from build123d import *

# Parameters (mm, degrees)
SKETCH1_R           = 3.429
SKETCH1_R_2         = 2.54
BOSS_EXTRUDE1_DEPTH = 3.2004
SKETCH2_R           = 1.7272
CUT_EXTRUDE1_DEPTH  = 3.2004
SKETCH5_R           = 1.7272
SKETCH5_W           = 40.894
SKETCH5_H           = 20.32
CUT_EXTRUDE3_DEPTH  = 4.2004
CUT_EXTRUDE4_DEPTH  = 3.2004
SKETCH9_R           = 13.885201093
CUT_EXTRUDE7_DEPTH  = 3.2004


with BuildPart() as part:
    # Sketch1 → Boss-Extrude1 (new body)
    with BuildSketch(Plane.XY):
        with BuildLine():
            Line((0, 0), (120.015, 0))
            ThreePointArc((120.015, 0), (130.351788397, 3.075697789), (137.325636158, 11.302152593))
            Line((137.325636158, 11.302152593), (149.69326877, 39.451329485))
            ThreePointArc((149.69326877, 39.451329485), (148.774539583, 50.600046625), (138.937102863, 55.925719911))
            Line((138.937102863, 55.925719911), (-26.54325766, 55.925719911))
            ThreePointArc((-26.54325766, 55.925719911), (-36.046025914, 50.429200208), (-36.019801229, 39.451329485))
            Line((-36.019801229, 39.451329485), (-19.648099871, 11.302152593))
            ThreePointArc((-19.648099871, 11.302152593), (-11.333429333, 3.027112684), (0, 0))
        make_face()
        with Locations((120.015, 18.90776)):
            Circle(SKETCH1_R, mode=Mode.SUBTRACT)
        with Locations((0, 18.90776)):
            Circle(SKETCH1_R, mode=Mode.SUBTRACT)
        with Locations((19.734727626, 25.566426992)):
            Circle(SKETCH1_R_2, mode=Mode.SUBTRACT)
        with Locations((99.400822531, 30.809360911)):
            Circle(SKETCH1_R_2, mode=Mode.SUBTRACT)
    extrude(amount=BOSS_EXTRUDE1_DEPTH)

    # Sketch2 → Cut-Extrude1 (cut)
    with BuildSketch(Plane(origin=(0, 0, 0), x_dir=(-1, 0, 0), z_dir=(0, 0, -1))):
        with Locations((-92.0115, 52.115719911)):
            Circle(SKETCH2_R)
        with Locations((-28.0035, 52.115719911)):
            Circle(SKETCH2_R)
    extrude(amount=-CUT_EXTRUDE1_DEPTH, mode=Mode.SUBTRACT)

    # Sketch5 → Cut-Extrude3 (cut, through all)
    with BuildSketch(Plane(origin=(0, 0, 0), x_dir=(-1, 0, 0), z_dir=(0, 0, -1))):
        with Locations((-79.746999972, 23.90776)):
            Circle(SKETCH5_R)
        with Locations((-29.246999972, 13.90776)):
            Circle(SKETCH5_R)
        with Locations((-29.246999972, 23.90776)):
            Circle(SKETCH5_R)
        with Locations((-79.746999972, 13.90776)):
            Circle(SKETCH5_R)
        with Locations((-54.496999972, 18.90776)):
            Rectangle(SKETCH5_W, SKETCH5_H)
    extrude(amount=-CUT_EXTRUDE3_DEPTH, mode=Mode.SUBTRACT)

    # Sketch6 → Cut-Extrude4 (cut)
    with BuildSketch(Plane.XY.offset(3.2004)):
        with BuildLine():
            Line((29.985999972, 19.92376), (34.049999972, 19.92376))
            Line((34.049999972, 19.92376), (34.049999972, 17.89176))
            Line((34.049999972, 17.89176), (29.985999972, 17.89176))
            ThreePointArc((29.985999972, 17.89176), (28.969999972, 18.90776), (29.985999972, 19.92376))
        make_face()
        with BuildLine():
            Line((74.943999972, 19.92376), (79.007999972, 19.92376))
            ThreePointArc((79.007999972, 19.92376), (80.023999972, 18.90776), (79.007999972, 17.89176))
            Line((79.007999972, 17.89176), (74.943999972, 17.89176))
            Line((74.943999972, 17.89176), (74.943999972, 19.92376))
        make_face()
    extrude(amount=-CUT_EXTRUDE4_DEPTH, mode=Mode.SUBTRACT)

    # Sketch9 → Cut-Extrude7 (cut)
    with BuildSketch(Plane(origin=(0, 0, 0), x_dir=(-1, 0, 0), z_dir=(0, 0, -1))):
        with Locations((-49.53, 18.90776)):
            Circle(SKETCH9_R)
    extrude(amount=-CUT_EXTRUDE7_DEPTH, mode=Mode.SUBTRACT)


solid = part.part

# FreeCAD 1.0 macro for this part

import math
import FreeCAD as App
import Part
import Sketcher

V = App.Vector
Q = App.Units.Quantity

doc = App.newDocument("Part")
params = doc.addObject("Spreadsheet::Sheet", "Params")
for row, (alias, value) in enumerate([
    ("sketch1_diameter", "0.2 in"),
    ("sketch1_diameter2", "0.27 in"),
    ("sketch1_width", "4.725 in"),
    ("pad1_length", "0.126 in"),
    ("sketch2_diameter", "0.136 in"),
    ("pocket1_length", "0.126 in"),
    ("sketch3_diameter", "0.136 in"),
    ("sketch3_height", "0.8 in"),
    ("sketch3_width", "1.61 in"),
    ("sketch4_radius", "0.04 in"),
    ("sketch4_width", "0.16 in"),
    ("pocket3_length", "0.126 in"),
    ("pocket4_length", "0.126 in"),
], start=1):
    params.set(f"A{row}", alias)
    params.set(f"B{row}", "=" + value)
    params.setAlias(f"B{row}", alias)

body = doc.addObject("PartDesign::Body", "Body")

sketch1 = doc.addObject("Sketcher::SketchObject", "Sketch")
body.addObject(sketch1)
sketch1.AttachmentSupport = (doc.XY_Plane, [""])
sketch1.MapMode = "FlatFace"
sketch1.addGeometry([
    Part.LineSegment(V(0, 0, 0), V(120.015, 0, 0)),
    Part.ArcOfCircle(Part.Circle(V(120.015, 18.90776, 0), V(0, 0, 1), 18.90776), math.radians(-90), math.radians(-23.718783)),
    Part.LineSegment(V(137.325636, 11.302153, 0), V(149.693269, 39.451329, 0)),
    Part.ArcOfCircle(Part.Circle(V(138.937103, 44.177162, 0), V(0, 0, 1), 11.748557), math.radians(-23.718783), math.radians(90)),
    Part.LineSegment(V(138.937103, 55.92572, 0), V(-26.543258, 55.92572, 0)),
    Part.ArcOfCircle(Part.Circle(V(-26.543258, 44.962934, 0), V(0, 0, 1), 10.962786), math.radians(90), math.radians(210.182496)),
    Part.LineSegment(V(-36.019801, 39.451329, 0), V(-19.6481, 11.302153, 0)),
    Part.ArcOfCircle(Part.Circle(V(0, 22.729585, 0), V(0, 0, 1), 22.729585), math.radians(-149.817504), math.radians(-90)),
    Part.Circle(V(0, 18.90776, 0), V(0, 0, 1), 3.429),
    Part.Circle(V(120.015, 18.90776, 0), V(0, 0, 1), 3.429),
    Part.Circle(V(19.734728, 25.566427, 0), V(0, 0, 1), 2.54),
    Part.Circle(V(99.400823, 30.809361, 0), V(0, 0, 1), 2.54),
], False)
sketch1.addConstraint([
    Sketcher.Constraint("Tangent", 0, 2, 1, 1),
    Sketcher.Constraint("Tangent", 1, 2, 2, 1),
    Sketcher.Constraint("Tangent", 2, 2, 3, 1),
    Sketcher.Constraint("Tangent", 3, 2, 4, 1),
    Sketcher.Constraint("Tangent", 4, 2, 5, 1),
    Sketcher.Constraint("Tangent", 5, 2, 6, 1),
    Sketcher.Constraint("Tangent", 6, 2, 7, 1),
    Sketcher.Constraint("Tangent", 7, 2, 0, 1),
    Sketcher.Constraint("Horizontal", 0),
    Sketcher.Constraint("Horizontal", 4),
    Sketcher.Constraint("Coincident", 7, 2, -1, 1),
    Sketcher.Constraint("Coincident", 9, 3, 1, 3),
    Sketcher.Constraint("Equal", 8, 9),
    Sketcher.Constraint("Equal", 10, 11),
    Sketcher.Constraint("PointOnObject", 8, 3, -2),
    Sketcher.Constraint("Horizontal", 1, 3, 8, 3),
    Sketcher.Constraint("Horizontal", 2, 2, 5, 2),
    Sketcher.Constraint("Horizontal", 1, 2, 6, 2),
    Sketcher.Constraint("Diameter", 10, Q("0.2 in")),
    Sketcher.Constraint("Diameter", 8, Q("0.27 in")),
    Sketcher.Constraint("Radius", 1, Q("0.7444 in")),
    Sketcher.Constraint("DistanceX", 0, 1, 0, 2, Q("4.725 in")),
    Sketcher.Constraint("DistanceY", -1, 1, 3, 2, Q("2.2018 in")),
    Sketcher.Constraint("Radius", 3, 11.748557),
    Sketcher.Constraint("Radius", 5, 10.962786),
    Sketcher.Constraint("Radius", 7, 22.729585),
    Sketcher.Constraint("DistanceY", 1, 3, 11, 3, 11.901601),
    Sketcher.Constraint("DistanceY", 7, 3, 10, 3, 2.836842),
    Sketcher.Constraint("DistanceX", 11, 3, 3, 3, 39.53628),
    Sketcher.Constraint("DistanceX", 5, 2, 10, 3, 55.754529),
])
sketch1.setExpression("Constraints[18]", "Params.sketch1_diameter")
sketch1.setExpression("Constraints[19]", "Params.sketch1_diameter2")
sketch1.setExpression("Constraints[21]", "Params.sketch1_width")
pad1 = doc.addObject("PartDesign::Pad", "Pad")
body.addObject(pad1)
pad1.Profile = sketch1
pad1.setExpression("Length", "Params.pad1_length")

sketch2 = doc.addObject("Sketcher::SketchObject", "Sketch001")
body.addObject(sketch2)
sketch2.AttachmentSupport = (doc.XY_Plane, [""])
sketch2.MapMode = "FlatFace"
sketch2.addGeometry([
    Part.Circle(V(92.0115, 52.11572, 0), V(0, 0, 1), 1.7272),
    Part.Circle(V(28.0035, 52.11572, 0), V(0, 0, 1), 1.7272),
], False)
sketch2.addConstraint([
    Sketcher.Constraint("Equal", 0, 1),
    Sketcher.Constraint("Horizontal", 0, 3, 1, 3),
    Sketcher.Constraint("Diameter", 0, Q("0.136 in")),
    Sketcher.Constraint("DistanceX", 1, 3, 0, 3, Q("2.52 in")),
    Sketcher.Constraint("DistanceX", -1, 1, 0, 3, Q("3.6225 in")),
    Sketcher.Constraint("DistanceY", -1, 1, 0, 3, Q("2.0518 in")),
])
sketch2.setExpression("Constraints[2]", "Params.sketch2_diameter")
pocket1 = doc.addObject("PartDesign::Pocket", "Pocket")
body.addObject(pocket1)
pocket1.Profile = sketch2
pocket1.setExpression("Length", "Params.pocket1_length")
pocket1.Reversed = True

sketch3 = doc.addObject("Sketcher::SketchObject", "Sketch002")
body.addObject(sketch3)
sketch3.AttachmentSupport = (doc.XY_Plane, [""])
sketch3.MapMode = "FlatFace"
sketch3.addGeometry([
    Part.Circle(V(79.747, 23.90776, 0), V(0, 0, 1), 1.7272),
    Part.Circle(V(29.247, 13.90776, 0), V(0, 0, 1), 1.7272),
    Part.Circle(V(29.247, 23.90776, 0), V(0, 0, 1), 1.7272),
    Part.Circle(V(79.747, 13.90776, 0), V(0, 0, 1), 1.7272),
    Part.LineSegment(V(74.944, 29.06776, 0), V(74.944, 8.74776, 0)),
    Part.LineSegment(V(74.944, 8.74776, 0), V(34.05, 8.74776, 0)),
    Part.LineSegment(V(34.05, 8.74776, 0), V(34.05, 29.06776, 0)),
    Part.LineSegment(V(34.05, 29.06776, 0), V(74.944, 29.06776, 0)),
], False)
sketch3.addConstraint([
    Sketcher.Constraint("Coincident", 4, 2, 5, 1),
    Sketcher.Constraint("Coincident", 5, 2, 6, 1),
    Sketcher.Constraint("Coincident", 6, 2, 7, 1),
    Sketcher.Constraint("Coincident", 7, 2, 4, 1),
    Sketcher.Constraint("Vertical", 4),
    Sketcher.Constraint("Horizontal", 5),
    Sketcher.Constraint("Vertical", 6),
    Sketcher.Constraint("Horizontal", 7),
    Sketcher.Constraint("Equal", 0, 1),
    Sketcher.Constraint("Equal", 1, 2),
    Sketcher.Constraint("Equal", 2, 3),
    Sketcher.Constraint("Horizontal", 0, 3, 2, 3),
    Sketcher.Constraint("Horizontal", 1, 3, 3, 3),
    Sketcher.Constraint("Vertical", 1, 3, 2, 3),
    Sketcher.Constraint("Vertical", 0, 3, 3, 3),
    Sketcher.Constraint("Diameter", 0, Q("0.136 in")),
    Sketcher.Constraint("DistanceY", 4, 2, 4, 1, Q("0.8 in")),
    Sketcher.Constraint("DistanceX", 5, 2, 5, 1, Q("1.61 in")),
    Sketcher.Constraint("DistanceY", -1, 1, 4, 2, Q("0.3444 in")),
    Sketcher.Constraint("DistanceX", -1, 1, 0, 3, 79.747),
    Sketcher.Constraint("DistanceX", -1, 1, 1, 3, 29.247),
    Sketcher.Constraint("DistanceX", -1, 1, 4, 2, 74.944),
    Sketcher.Constraint("DistanceY", 1, 3, 0, 3, 10.0),
    Sketcher.Constraint("DistanceY", 4, 2, 3, 3, 5.16),
])
sketch3.setExpression("Constraints[15]", "Params.sketch3_diameter")
sketch3.setExpression("Constraints[16]", "Params.sketch3_height")
sketch3.setExpression("Constraints[17]", "Params.sketch3_width")
pocket2 = doc.addObject("PartDesign::Pocket", "Pocket001")
body.addObject(pocket2)
pocket2.Profile = sketch3
pocket2.Type = "ThroughAll"
pocket2.Reversed = True

sketch4 = doc.addObject("Sketcher::SketchObject", "Sketch003")
body.addObject(sketch4)
sketch4.AttachmentSupport = (doc.XY_Plane, [""])
sketch4.MapMode = "FlatFace"
sketch4.AttachmentOffset = App.Placement(V(0, 0, 0.126 * 25.4), App.Rotation())
sketch4.addGeometry([
    Part.LineSegment(V(34.05, 19.92376, 0), V(29.986, 19.92376, 0)),
    Part.ArcOfCircle(Part.Circle(V(29.986, 18.90776, 0), V(0, 0, 1), 1.016), math.radians(90), math.radians(270)),
    Part.LineSegment(V(29.986, 17.89176, 0), V(34.05, 17.89176, 0)),
    Part.LineSegment(V(34.05, 17.89176, 0), V(34.05, 19.92376, 0)),
    Part.LineSegment(V(79.008, 19.92376, 0), V(74.944, 19.92376, 0)),
    Part.LineSegment(V(74.944, 19.92376, 0), V(74.944, 17.89176, 0)),
    Part.LineSegment(V(74.944, 17.89176, 0), V(79.008, 17.89176, 0)),
    Part.ArcOfCircle(Part.Circle(V(79.008, 18.90776, 0), V(0, 0, 1), 1.016), math.radians(-90), math.radians(90)),
], False)
sketch4.addConstraint([
    Sketcher.Constraint("Tangent", 0, 2, 1, 1),
    Sketcher.Constraint("Tangent", 1, 2, 2, 1),
    Sketcher.Constraint("Coincident", 2, 2, 3, 1),
    Sketcher.Constraint("Coincident", 3, 2, 0, 1),
    Sketcher.Constraint("Coincident", 4, 2, 5, 1),
    Sketcher.Constraint("Coincident", 5, 2, 6, 1),
    Sketcher.Constraint("Tangent", 6, 2, 7, 1),
    Sketcher.Constraint("Tangent", 7, 2, 4, 1),
    Sketcher.Constraint("Horizontal", 0),
    Sketcher.Constraint("Horizontal", 2),
    Sketcher.Constraint("Vertical", 3),
    Sketcher.Constraint("Horizontal", 4),
    Sketcher.Constraint("Vertical", 5),
    Sketcher.Constraint("Horizontal", 6),
    Sketcher.Constraint("Equal", 1, 7),
    Sketcher.Constraint("Horizontal", 1, 3, 7, 3),
    Sketcher.Constraint("Equal", 2, 4),
    Sketcher.Constraint("Radius", 1, Q("0.04 in")),
    Sketcher.Constraint("DistanceX", 0, 2, 0, 1, Q("0.16 in")),
    Sketcher.Constraint("DistanceX", 1, 3, 7, 3, Q("1.93 in")),
    Sketcher.Constraint("DistanceY", -1, 1, 1, 3, Q("0.7444 in")),
    Sketcher.Constraint("DistanceX", -1, 1, 1, 3, 29.986),
])
sketch4.setExpression("Constraints[17]", "Params.sketch4_radius")
sketch4.setExpression("Constraints[18]", "Params.sketch4_width")
pocket3 = doc.addObject("PartDesign::Pocket", "Pocket002")
body.addObject(pocket3)
pocket3.Profile = sketch4
pocket3.setExpression("Length", "Params.pocket3_length")

sketch5 = doc.addObject("Sketcher::SketchObject", "Sketch004")
body.addObject(sketch5)
sketch5.AttachmentSupport = (doc.XY_Plane, [""])
sketch5.MapMode = "FlatFace"
sketch5.addGeometry(Part.Circle(V(49.53, 18.90776, 0), V(0, 0, 1), 13.885201), False)
sketch5.addConstraint([
    Sketcher.Constraint("DistanceX", -1, 1, 0, 3, Q("1.95 in")),
    Sketcher.Constraint("Diameter", 0, 27.770402),
    Sketcher.Constraint("DistanceY", -1, 1, 0, 3, Q("0.7444 in")),
])
pocket4 = doc.addObject("PartDesign::Pocket", "Pocket003")
body.addObject(pocket4)
pocket4.Profile = sketch5
pocket4.setExpression("Length", "Params.pocket4_length")
pocket4.Reversed = True

doc.recompute()
